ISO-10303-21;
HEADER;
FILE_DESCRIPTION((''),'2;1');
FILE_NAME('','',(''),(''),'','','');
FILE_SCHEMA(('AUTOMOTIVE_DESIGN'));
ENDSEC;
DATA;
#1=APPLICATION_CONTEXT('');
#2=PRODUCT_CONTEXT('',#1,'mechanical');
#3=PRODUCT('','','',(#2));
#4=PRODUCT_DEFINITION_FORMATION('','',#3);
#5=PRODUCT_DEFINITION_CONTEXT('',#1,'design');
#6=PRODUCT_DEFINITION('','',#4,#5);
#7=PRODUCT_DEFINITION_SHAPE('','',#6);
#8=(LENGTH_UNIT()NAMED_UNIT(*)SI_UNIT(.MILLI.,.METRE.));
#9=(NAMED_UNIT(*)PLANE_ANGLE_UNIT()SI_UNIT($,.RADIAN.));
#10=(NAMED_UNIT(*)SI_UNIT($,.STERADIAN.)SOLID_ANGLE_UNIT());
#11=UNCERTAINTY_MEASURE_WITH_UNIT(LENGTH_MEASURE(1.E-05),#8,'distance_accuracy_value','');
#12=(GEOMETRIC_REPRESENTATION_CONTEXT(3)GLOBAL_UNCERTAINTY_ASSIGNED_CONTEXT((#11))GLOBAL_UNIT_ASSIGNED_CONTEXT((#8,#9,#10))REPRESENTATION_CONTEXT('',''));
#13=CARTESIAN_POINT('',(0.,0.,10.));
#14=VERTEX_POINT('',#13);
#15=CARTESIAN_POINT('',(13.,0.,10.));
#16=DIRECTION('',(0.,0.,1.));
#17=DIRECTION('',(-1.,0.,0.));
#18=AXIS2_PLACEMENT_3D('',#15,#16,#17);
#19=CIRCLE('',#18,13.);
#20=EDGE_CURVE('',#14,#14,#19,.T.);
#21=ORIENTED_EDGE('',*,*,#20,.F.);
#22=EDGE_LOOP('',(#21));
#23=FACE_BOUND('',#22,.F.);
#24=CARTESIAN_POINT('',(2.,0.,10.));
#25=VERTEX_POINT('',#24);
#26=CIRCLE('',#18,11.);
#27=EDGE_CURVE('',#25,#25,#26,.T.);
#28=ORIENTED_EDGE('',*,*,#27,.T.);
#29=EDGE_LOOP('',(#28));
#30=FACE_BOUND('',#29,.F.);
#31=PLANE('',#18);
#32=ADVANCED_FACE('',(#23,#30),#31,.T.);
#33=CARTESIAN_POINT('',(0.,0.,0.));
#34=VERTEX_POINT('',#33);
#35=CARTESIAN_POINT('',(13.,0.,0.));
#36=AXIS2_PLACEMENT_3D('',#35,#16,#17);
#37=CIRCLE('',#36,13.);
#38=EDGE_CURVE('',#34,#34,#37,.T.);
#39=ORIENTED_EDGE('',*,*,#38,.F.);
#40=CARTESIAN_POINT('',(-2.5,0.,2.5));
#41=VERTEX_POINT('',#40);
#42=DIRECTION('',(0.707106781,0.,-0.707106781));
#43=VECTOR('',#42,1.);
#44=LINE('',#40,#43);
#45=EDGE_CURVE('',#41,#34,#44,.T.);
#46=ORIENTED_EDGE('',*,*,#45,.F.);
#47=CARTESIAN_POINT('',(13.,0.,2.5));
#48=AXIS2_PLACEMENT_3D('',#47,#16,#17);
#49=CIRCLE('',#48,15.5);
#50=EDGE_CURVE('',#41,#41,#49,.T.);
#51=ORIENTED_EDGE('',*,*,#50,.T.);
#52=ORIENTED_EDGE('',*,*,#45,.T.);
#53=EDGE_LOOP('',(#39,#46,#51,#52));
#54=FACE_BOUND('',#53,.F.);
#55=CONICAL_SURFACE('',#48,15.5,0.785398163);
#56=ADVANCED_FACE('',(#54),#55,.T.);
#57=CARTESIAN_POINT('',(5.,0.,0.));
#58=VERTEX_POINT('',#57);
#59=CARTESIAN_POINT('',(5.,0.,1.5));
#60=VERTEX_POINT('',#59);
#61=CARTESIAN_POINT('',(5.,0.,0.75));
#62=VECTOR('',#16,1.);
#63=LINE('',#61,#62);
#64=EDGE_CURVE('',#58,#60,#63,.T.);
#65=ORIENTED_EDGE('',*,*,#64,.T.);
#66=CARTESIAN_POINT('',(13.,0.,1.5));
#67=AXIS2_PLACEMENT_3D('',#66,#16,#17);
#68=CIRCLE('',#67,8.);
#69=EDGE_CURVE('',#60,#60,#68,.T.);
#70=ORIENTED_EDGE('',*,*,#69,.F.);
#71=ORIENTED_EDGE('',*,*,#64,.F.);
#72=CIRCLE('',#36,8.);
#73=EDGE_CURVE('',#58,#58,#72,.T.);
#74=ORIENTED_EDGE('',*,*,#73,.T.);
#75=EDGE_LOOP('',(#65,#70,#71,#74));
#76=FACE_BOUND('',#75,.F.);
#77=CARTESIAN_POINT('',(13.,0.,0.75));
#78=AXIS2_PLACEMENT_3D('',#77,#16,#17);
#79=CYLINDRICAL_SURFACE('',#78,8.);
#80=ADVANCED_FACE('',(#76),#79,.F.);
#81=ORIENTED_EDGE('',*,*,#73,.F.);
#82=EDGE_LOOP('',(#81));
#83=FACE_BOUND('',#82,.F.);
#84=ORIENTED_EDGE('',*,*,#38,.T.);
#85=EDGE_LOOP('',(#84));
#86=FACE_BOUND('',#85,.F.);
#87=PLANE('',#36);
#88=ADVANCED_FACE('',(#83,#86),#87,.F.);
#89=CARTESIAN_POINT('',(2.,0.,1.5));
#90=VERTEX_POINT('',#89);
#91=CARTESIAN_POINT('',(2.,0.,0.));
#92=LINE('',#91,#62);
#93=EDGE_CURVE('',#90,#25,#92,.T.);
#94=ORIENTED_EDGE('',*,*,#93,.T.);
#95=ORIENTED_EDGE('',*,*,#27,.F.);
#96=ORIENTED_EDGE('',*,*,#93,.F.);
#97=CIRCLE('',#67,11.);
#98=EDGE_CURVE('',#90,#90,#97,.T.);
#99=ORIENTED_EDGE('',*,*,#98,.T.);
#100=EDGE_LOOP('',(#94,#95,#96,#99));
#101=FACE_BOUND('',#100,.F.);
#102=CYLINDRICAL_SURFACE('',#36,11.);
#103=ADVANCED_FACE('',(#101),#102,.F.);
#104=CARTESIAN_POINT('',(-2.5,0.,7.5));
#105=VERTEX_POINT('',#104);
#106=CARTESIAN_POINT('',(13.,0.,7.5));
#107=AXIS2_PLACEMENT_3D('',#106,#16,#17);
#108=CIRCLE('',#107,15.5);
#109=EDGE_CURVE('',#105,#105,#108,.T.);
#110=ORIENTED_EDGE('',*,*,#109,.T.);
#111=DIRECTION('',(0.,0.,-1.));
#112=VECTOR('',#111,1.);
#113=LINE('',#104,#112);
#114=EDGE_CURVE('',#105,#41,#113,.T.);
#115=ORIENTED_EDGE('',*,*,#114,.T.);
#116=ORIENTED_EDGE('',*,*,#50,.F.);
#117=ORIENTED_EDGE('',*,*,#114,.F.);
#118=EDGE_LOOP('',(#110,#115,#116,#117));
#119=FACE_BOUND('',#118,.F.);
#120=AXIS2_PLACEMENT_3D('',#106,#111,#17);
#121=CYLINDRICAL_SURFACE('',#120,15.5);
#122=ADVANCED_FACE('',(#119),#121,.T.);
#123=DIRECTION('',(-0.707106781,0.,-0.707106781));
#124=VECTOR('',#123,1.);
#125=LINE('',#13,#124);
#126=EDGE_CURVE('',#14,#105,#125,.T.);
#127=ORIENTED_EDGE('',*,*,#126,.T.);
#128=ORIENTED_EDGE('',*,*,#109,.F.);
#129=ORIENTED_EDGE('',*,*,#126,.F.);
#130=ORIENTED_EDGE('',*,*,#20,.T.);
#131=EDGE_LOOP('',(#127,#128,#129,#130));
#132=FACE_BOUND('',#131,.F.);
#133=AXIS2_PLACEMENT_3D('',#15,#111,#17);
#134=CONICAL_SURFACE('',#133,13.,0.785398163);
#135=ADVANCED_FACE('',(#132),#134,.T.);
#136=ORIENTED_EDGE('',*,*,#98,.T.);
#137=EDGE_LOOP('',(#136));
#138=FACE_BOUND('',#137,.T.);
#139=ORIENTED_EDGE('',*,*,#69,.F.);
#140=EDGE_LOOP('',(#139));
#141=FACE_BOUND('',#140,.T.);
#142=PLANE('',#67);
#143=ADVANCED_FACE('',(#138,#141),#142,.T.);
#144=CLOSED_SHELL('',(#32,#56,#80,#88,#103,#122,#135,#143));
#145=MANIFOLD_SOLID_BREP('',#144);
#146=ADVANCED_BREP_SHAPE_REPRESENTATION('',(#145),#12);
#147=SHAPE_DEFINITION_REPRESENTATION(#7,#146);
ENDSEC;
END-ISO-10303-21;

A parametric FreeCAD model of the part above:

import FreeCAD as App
import Part
import Sketcher

V = App.Vector
Q = App.Units.Quantity


def add_polygon(sketch, points):
    """Adds a closed chain of lines whose ends are joined by coincident constraints."""
    first, n = sketch.GeometryCount, len(points)
    for a, b in zip(points, points[1:] + points[:1]):
        sketch.addGeometry(Part.LineSegment(App.Vector(*a, 0), App.Vector(*b, 0)), False)
    for i in range(n):
        sketch.addConstraint(Sketcher.Constraint("Coincident", first + i, 2, first + (i + 1) % n, 1))

doc = App.newDocument("Part")
body = doc.addObject("PartDesign::Body", "Body")

# Sketch on XZ plane
sketch1 = body.newObject("Sketcher::SketchObject", "Sketch")
sketch1.AttachmentSupport = (doc.getObject("XZ_Plane"), [""])
sketch1.MapMode = "FlatFace"
add_polygon(sketch1, [(-2.5, 2.5), (0, 0), (5, 0), (5, 1.5), (2, 1.5), (2, 10), (0, 10), (-2.5, 7.5)])  # lines 0-7
sketch1.addGeometry(Part.LineSegment(V(13, 0, 0), V(13, 10, 0)), True)  # axis
sketch1.addConstraint([
    Sketcher.Constraint("Horizontal", 1),
    Sketcher.Constraint("Vertical", 2),
    Sketcher.Constraint("Horizontal", 3),
    Sketcher.Constraint("Vertical", 4),
    Sketcher.Constraint("Horizontal", 5),
    Sketcher.Constraint("Vertical", 7),
    Sketcher.Constraint("Vertical", 8),
    Sketcher.Constraint("Coincident", 0, 2, -1, 1),
    Sketcher.Constraint("PointOnObject", 5, 2, -2),
    Sketcher.Constraint("PointOnObject", 8, 1, -1),
    Sketcher.Constraint("Perpendicular", 0, 6),
    Sketcher.Constraint("Horizontal", 5, 2, 8, 2),
    Sketcher.Constraint("Equal", 1, 7),
    Sketcher.Constraint("Equal", 0, 6),
    Sketcher.Constraint("DistanceX", 1, 1, 1, 2, Q("5 mm")),
    Sketcher.Constraint("DistanceX", 3, 2, 3, 1, Q("3 mm")),
    Sketcher.Constraint("DistanceY", 8, 1, 8, 2, Q("10 mm")),
    Sketcher.Constraint("DistanceY", 2, 1, 2, 2, Q("1.5 mm")),
    Sketcher.Constraint("DistanceX", -1, 1, 8, 1, Q("13 mm")),
])
revolution = body.newObject("PartDesign::Revolution", "Revolution")
revolution.Profile = sketch1
revolution.ReferenceAxis = (sketch1, ["Axis0"])
revolution.Angle = 360

doc.recompute()
